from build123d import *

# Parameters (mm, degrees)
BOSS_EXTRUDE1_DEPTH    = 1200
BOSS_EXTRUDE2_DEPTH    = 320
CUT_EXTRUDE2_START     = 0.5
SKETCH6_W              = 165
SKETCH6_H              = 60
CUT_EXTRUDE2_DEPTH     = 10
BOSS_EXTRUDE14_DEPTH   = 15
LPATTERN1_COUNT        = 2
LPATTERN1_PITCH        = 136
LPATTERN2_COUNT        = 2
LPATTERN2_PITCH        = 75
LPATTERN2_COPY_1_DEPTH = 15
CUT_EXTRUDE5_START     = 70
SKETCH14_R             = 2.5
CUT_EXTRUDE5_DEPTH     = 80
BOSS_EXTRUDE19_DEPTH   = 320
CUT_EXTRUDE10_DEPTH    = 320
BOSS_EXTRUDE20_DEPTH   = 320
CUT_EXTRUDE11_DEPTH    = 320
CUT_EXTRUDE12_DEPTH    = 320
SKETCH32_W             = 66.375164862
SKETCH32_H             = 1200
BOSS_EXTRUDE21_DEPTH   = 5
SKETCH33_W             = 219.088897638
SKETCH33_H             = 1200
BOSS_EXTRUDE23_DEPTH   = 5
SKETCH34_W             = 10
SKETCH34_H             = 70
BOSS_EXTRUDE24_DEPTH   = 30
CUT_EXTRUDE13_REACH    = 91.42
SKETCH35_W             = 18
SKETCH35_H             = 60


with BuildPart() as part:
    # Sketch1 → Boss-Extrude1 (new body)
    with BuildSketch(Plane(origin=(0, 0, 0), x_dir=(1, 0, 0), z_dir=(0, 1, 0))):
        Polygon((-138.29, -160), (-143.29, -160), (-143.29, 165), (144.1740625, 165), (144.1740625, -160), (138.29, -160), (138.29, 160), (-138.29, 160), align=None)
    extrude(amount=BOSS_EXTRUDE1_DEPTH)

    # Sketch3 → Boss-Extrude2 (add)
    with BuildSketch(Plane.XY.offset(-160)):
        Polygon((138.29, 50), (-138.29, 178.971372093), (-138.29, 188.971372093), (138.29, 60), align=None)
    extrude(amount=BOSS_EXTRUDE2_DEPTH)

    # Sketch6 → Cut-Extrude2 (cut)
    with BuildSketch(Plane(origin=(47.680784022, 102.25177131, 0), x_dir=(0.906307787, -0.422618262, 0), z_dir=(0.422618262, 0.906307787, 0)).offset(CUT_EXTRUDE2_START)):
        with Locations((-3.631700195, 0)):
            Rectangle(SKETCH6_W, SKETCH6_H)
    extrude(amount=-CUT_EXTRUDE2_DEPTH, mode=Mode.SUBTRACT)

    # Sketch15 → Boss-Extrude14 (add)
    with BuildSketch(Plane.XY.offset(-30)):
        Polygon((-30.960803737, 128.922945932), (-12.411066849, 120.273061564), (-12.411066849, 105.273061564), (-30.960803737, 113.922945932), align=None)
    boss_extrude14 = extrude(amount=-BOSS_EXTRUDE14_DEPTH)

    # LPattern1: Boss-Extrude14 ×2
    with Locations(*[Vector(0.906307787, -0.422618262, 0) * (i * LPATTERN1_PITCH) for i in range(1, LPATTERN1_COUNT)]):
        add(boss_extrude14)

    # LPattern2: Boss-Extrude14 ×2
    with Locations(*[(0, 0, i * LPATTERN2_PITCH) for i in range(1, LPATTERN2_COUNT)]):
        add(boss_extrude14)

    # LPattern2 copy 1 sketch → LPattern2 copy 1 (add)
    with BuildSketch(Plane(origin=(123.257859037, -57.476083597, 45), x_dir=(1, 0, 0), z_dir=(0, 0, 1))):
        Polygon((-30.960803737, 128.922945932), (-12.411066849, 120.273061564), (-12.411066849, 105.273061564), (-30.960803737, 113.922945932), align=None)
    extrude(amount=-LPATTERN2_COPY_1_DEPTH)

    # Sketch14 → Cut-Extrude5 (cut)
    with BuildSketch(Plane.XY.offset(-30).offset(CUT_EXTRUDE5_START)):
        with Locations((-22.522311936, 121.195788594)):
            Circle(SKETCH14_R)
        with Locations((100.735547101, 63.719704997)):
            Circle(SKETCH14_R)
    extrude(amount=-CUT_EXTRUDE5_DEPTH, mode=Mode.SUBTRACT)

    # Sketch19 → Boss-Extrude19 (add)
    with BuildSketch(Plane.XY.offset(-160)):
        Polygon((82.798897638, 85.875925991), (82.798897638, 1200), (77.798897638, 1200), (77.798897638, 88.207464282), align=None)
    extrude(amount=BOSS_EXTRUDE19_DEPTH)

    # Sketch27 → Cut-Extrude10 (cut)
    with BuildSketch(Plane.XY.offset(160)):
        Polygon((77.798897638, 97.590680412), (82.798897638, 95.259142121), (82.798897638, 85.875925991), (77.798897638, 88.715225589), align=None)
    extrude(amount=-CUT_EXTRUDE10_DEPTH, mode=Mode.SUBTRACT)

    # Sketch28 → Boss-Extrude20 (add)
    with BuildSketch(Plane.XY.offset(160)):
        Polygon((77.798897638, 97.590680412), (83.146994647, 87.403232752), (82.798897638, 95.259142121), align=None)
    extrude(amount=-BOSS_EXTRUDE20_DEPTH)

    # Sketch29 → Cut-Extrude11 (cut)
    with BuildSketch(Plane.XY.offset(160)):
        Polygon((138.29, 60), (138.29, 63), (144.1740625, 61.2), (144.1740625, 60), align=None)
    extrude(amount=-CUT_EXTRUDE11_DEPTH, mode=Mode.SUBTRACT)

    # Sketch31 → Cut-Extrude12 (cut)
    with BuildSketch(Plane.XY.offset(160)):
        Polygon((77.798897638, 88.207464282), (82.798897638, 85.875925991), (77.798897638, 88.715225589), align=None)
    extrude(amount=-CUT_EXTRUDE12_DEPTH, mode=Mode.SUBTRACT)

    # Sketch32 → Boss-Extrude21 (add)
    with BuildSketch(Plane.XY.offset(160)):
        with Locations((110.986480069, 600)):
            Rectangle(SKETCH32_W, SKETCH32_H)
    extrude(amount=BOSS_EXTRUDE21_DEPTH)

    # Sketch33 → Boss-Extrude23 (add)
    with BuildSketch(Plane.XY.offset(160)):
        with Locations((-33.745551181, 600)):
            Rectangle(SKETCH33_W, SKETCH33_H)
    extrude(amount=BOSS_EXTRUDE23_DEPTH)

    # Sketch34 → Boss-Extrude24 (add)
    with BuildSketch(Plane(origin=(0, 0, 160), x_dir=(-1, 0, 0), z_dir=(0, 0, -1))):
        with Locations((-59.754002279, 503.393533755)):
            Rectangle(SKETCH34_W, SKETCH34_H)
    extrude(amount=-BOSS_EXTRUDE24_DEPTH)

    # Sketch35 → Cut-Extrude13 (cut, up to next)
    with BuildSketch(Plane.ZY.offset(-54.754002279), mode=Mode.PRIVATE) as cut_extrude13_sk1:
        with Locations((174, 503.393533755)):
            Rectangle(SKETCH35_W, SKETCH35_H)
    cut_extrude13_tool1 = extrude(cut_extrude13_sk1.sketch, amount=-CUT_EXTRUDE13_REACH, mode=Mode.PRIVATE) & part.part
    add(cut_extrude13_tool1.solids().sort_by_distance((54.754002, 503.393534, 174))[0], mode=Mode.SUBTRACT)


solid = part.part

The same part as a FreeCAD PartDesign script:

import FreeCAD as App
import Part
import Sketcher
Q = App.Units.Quantity


def add_polygon(sketch, points):
    """Adds a closed chain of lines whose ends are joined by coincident constraints."""
    first, n = sketch.GeometryCount, len(points)
    for a, b in zip(points, points[1:] + points[:1]):
        sketch.addGeometry(Part.LineSegment(App.Vector(*a, 0), App.Vector(*b, 0)), False)
    for i in range(n):
        sketch.addConstraint(Sketcher.Constraint("Coincident", first + i, 2, first + (i + 1) % n, 1))

doc = App.newDocument("Part")
body = doc.addObject("PartDesign::Body", "Body")

# Sketch on XZ plane
sketch1 = doc.addObject("Sketcher::SketchObject", "Sketch")
body.addObject(sketch1)
sketch1.AttachmentSupport = (doc.XZ_Plane, [""])
sketch1.MapMode = "FlatFace"
add_polygon(sketch1, [(-143.29, 160), (-138.29, 160), (-138.29, -160), (138.29, -160), (138.29, 160), (144.174062, 160), (144.174062, -165), (-143.29, -165)])  # lines 0-7
sketch1.addConstraint([
    Sketcher.Constraint("Horizontal", 0),
    Sketcher.Constraint("Vertical", 1),
    Sketcher.Constraint("Horizontal", 2),
    Sketcher.Constraint("Vertical", 3),
    Sketcher.Constraint("Horizontal", 4),
    Sketcher.Constraint("Vertical", 5),
    Sketcher.Constraint("Horizontal", 6),
    Sketcher.Constraint("Vertical", 7),
    Sketcher.Constraint("Symmetric", 0, 2, 2, 2, -1, 1),
    Sketcher.Constraint("Horizontal", 0, 2, 3, 2),
    Sketcher.Constraint("DistanceX", 0, 1, 0, 2, 5.0),
    Sketcher.Constraint("DistanceY", 1, 2, 1, 1, 320.0),
    Sketcher.Constraint("DistanceY", 5, 2, 5, 1, 325.0),
    Sketcher.Constraint("DistanceX", 2, 1, 2, 2, 276.58),
    Sketcher.Constraint("DistanceX", 4, 1, 4, 2, 5.884062),
])
pad1 = doc.addObject("PartDesign::Pad", "Pad")
body.addObject(pad1)
pad1.Profile = sketch1
pad1.Length = 1200
pad1.Reversed = True

# Sketch on XY plane
sketch2 = doc.addObject("Sketcher::SketchObject", "Sketch001")
body.addObject(sketch2)
sketch2.AttachmentSupport = (doc.XY_Plane, [""])
sketch2.MapMode = "FlatFace"
sketch2.AttachmentOffset = App.Placement(App.Vector(0, 0, -160), App.Rotation())
add_polygon(sketch2, [(-138.29, 178.971372), (138.29, 50), (138.29, 60), (-138.29, 188.971372)])  # lines 0-3
sketch2.addConstraint([
    Sketcher.Constraint("Vertical", 1),
    Sketcher.Constraint("Vertical", 3),
    Sketcher.Constraint("Parallel", 0, 2),
    Sketcher.Constraint("DistanceY", 1, 1, 1, 2, 10.0),
    Sketcher.Constraint("Angle", 0, Q("-25 deg")),
    Sketcher.Constraint("DistanceY", -1, 1, 0, 2, 50.0),
    Sketcher.Constraint("DistanceX", -1, 1, 0, 2, 138.29),
    Sketcher.Constraint("DistanceX", 2, 2, -1, 1, 138.29),
])
pad2 = doc.addObject("PartDesign::Pad", "Pad001")
body.addObject(pad2)
pad2.Profile = sketch2
pad2.Length = 320

# Sketch on an angled plane
sketch3 = doc.addObject("Sketcher::SketchObject", "Sketch002")
body.addObject(sketch3)
sketch3.Placement = App.Placement(App.Vector(47.892093, 102.704925, 0), App.Rotation(App.Vector(0.906307787, -0.422618262, 0), App.Vector(0, 0, -1), App.Vector(0.422618262, 0.906307787, 0), "ZXY"))
add_polygon(sketch3, [(-86.1317, 30), (-86.1317, -30), (78.8683, -30), (78.8683, 30)])  # lines 0-3
sketch3.addConstraint([
    Sketcher.Constraint("Vertical", 0),
    Sketcher.Constraint("Horizontal", 1),
    Sketcher.Constraint("Vertical", 2),
    Sketcher.Constraint("Horizontal", 3),
    Sketcher.Constraint("DistanceX", 1, 1, 1, 2, 165.0),
    Sketcher.Constraint("DistanceY", 0, 2, 0, 1, 60.0),
    Sketcher.Constraint("DistanceY", 0, 2, -1, 1, 30.0),
    Sketcher.Constraint("DistanceX", 0, 2, -1, 1, 86.1317),
])
pocket1 = doc.addObject("PartDesign::Pocket", "Pocket")
body.addObject(pocket1)
pocket1.Profile = sketch3
pocket1.Length = 10

# Sketch on XY plane
sketch4 = doc.addObject("Sketcher::SketchObject", "Sketch003")
body.addObject(sketch4)
sketch4.AttachmentSupport = (doc.XY_Plane, [""])
sketch4.MapMode = "FlatFace"
sketch4.AttachmentOffset = App.Placement(App.Vector(0, 0, -30), App.Rotation())
add_polygon(sketch4, [(-12.411067, 120.273062), (-30.960804, 128.922946), (-30.960804, 113.922946), (-12.411067, 105.273062)])  # lines 0-3
sketch4.addConstraint([
    Sketcher.Constraint("Vertical", 1),
    Sketcher.Constraint("Vertical", 3),
    Sketcher.Constraint("Parallel", 0, 2),
    Sketcher.Constraint("DistanceY", 1, 2, 1, 1, 15.0),
    Sketcher.Constraint("Angle", 0, Q("155 deg")),
    Sketcher.Constraint("Distance", 0, 20.46737),
    Sketcher.Constraint("DistanceY", -1, 1, 2, 2, 105.273062),
    Sketcher.Constraint("DistanceX", 0, 2, -1, 1, 30.960804),
])
pad3 = doc.addObject("PartDesign::Pad", "Pad002")
body.addObject(pad3)
pad3.Profile = sketch4
pad3.Length = 15
pad3.Reversed = True
doc.recompute()

datumline = doc.addObject("PartDesign::Line", "DatumLine")
body.addObject(datumline)
datumline.Placement = App.Placement(App.Vector(0, 0, 0), App.Rotation(App.Vector(0, 0, 1), App.Vector(0.906307787, -0.422618262, 0)))
linearpattern = doc.addObject("PartDesign::LinearPattern", "LinearPattern")
body.addObject(linearpattern)
linearpattern.Originals = [pad3]
linearpattern.Direction = (datumline, [""])
linearpattern.Mode = "offset"
linearpattern.Offset = 136
linearpattern.Occurrences = 2
body.Tip = linearpattern
doc.recompute()

linearpattern2 = doc.addObject("PartDesign::LinearPattern", "LinearPattern001")
body.addObject(linearpattern2)
linearpattern2.Originals = [pad3]
linearpattern2.Direction = (doc.Z_Axis, [""])
linearpattern2.Mode = "offset"
linearpattern2.Offset = 75
linearpattern2.Occurrences = 2
body.Tip = linearpattern2

# Sketch on XY plane
sketch5 = doc.addObject("Sketcher::SketchObject", "Sketch004")
body.addObject(sketch5)
sketch5.AttachmentSupport = (doc.XY_Plane, [""])
sketch5.MapMode = "FlatFace"
sketch5.AttachmentOffset = App.Placement(App.Vector(0, 0, 45), App.Rotation())
add_polygon(sketch5, [(110.846792, 62.796978), (92.297055, 71.446862), (92.297055, 56.446862), (110.846792, 47.796978)])  # lines 0-3
sketch5.addConstraint([
    Sketcher.Constraint("Vertical", 1),
    Sketcher.Constraint("Vertical", 3),
    Sketcher.Constraint("Parallel", 0, 2),
    Sketcher.Constraint("DistanceY", 1, 2, 1, 1, 15.0),
    Sketcher.Constraint("Angle", 0, Q("155 deg")),
    Sketcher.Constraint("Distance", 0, 20.46737),
    Sketcher.Constraint("DistanceX", -1, 1, 0, 2, 92.297055),
    Sketcher.Constraint("DistanceY", -1, 1, 0, 2, 71.446862),
])
pad4 = doc.addObject("PartDesign::Pad", "Pad003")
body.addObject(pad4)
pad4.Profile = sketch5
pad4.Length = 15
pad4.Reversed = True

# Sketch on XY plane
sketch6 = doc.addObject("Sketcher::SketchObject", "Sketch005")
body.addObject(sketch6)
sketch6.AttachmentSupport = (doc.XY_Plane, [""])
sketch6.MapMode = "FlatFace"
sketch6.AttachmentOffset = App.Placement(App.Vector(0, 0, 40), App.Rotation())
sketch6.addGeometry([
    Part.Circle(App.Vector(-22.522312, 121.195789, 0), App.Vector(0, 0, 1), 2.5),
    Part.Circle(App.Vector(100.735547, 63.719705, 0), App.Vector(0, 0, 1), 2.5),
], False)
sketch6.addConstraint([
    Sketcher.Constraint("Equal", 0, 1),
    Sketcher.Constraint("Diameter", 0, 5.0),
    Sketcher.Constraint("DistanceX", 0, 3, -1, 1, 22.522312),
    Sketcher.Constraint("DistanceY", -1, 1, 0, 3, 121.195789),
    Sketcher.Constraint("DistanceX", 0, 3, 1, 3, 123.257859),
    Sketcher.Constraint("DistanceY", -1, 1, 1, 3, 63.719705),
])
pocket2 = doc.addObject("PartDesign::Pocket", "Pocket001")
body.addObject(pocket2)
pocket2.Profile = sketch6
pocket2.Length = 80

# Sketch on XY plane
sketch7 = doc.addObject("Sketcher::SketchObject", "Sketch006")
body.addObject(sketch7)
sketch7.AttachmentSupport = (doc.XY_Plane, [""])
sketch7.MapMode = "FlatFace"
sketch7.AttachmentOffset = App.Placement(App.Vector(0, 0, -160), App.Rotation())
add_polygon(sketch7, [(82.798898, 85.875926), (82.798898, 1200), (77.798898, 1200), (77.798898, 88.207464)])  # lines 0-3
sketch7.addConstraint([
    Sketcher.Constraint("Vertical", 0),
    Sketcher.Constraint("Horizontal", 1),
    Sketcher.Constraint("Vertical", 2),
    Sketcher.Constraint("DistanceX", 1, 2, 1, 1, 5.0),
    Sketcher.Constraint("Angle", 3, Q("-25 deg")),
    Sketcher.Constraint("DistanceY", -1, 1, 0, 2, 1200.0),
    Sketcher.Constraint("DistanceY", 0, 1, 0, 2, 1114.124074),
    Sketcher.Constraint("DistanceX", -1, 1, 0, 2, 82.798898),
])
pad5 = doc.addObject("PartDesign::Pad", "Pad004")
body.addObject(pad5)
pad5.Profile = sketch7
pad5.Length = 320

# Sketch on XY plane
sketch8 = doc.addObject("Sketcher::SketchObject", "Sketch007")
body.addObject(sketch8)
sketch8.AttachmentSupport = (doc.XY_Plane, [""])
sketch8.MapMode = "FlatFace"
sketch8.AttachmentOffset = App.Placement(App.Vector(0, 0, 160), App.Rotation())
add_polygon(sketch8, [(82.798898, 95.259142), (77.798898, 97.59068), (77.798898, 88.715226), (82.798898, 85.875926)])  # lines 0-3
sketch8.addConstraint([
    Sketcher.Constraint("Vertical", 1),
    Sketcher.Constraint("Vertical", 3),
    Sketcher.Constraint("Angle", 0, Q("155 deg")),
    Sketcher.Constraint("DistanceX", 1, 2, 2, 2, 5.0),
    Sketcher.Constraint("DistanceY", 2, 2, 1, 2, 2.8393),
    Sketcher.Constraint("DistanceY", 1, 2, 1, 1, 8.875455),
    Sketcher.Constraint("DistanceY", -1, 1, 0, 2, 97.59068),
    Sketcher.Constraint("DistanceX", -1, 1, 0, 2, 77.798898),
])
pocket3 = doc.addObject("PartDesign::Pocket", "Pocket002")
body.addObject(pocket3)
pocket3.Profile = sketch8
pocket3.Length = 320

# Sketch on XY plane
sketch9 = doc.addObject("Sketcher::SketchObject", "Sketch008")
body.addObject(sketch9)
sketch9.AttachmentSupport = (doc.XY_Plane, [""])
sketch9.MapMode = "FlatFace"
sketch9.AttachmentOffset = App.Placement(App.Vector(0, 0, 160), App.Rotation())
add_polygon(sketch9, [(77.798898, 97.59068), (83.146995, 87.403233), (82.798898, 95.259142)])  # lines 0-2
sketch9.addConstraint([
    Sketcher.Constraint("Angle", 2, Q("155 deg")),
    Sketcher.Constraint("DistanceX", 2, 2, 1, 2, 5.0),
    Sketcher.Constraint("Distance", 0, 11.505922),
    Sketcher.Constraint("DistanceY", -1, 1, 2, 2, 97.59068),
    Sketcher.Constraint("DistanceY", 0, 2, 1, 2, 7.855909),
    Sketcher.Constraint("DistanceX", -1, 1, 0, 2, 83.146995),
])
pad6 = doc.addObject("PartDesign::Pad", "Pad005")
body.addObject(pad6)
pad6.Profile = sketch9
pad6.Length = 320
pad6.Reversed = True

# Sketch on XY plane
sketch10 = doc.addObject("Sketcher::SketchObject", "Sketch009")
body.addObject(sketch10)
sketch10.AttachmentSupport = (doc.XY_Plane, [""])
sketch10.MapMode = "FlatFace"
sketch10.AttachmentOffset = App.Placement(App.Vector(0, 0, 160), App.Rotation())
add_polygon(sketch10, [(138.29, 63), (138.29, 60), (144.174062, 60), (144.174062, 61.2)])  # lines 0-3
sketch10.addConstraint([
    Sketcher.Constraint("Vertical", 0),
    Sketcher.Constraint("Horizontal", 1),
    Sketcher.Constraint("Vertical", 2),
    Sketcher.Constraint("DistanceY", 0, 2, 0, 1, 3.0),
    Sketcher.Constraint("DistanceY", 2, 1, 2, 2, 1.2),
    Sketcher.Constraint("DistanceY", -1, 1, 0, 2, 60.0),
    Sketcher.Constraint("DistanceX", -1, 1, 0, 2, 138.29),
    Sketcher.Constraint("DistanceX", 1, 1, 1, 2, 5.884062),
])
pocket4 = doc.addObject("PartDesign::Pocket", "Pocket003")
body.addObject(pocket4)
pocket4.Profile = sketch10
pocket4.Length = 320

# Sketch on XY plane
sketch11 = doc.addObject("Sketcher::SketchObject", "Sketch010")
body.addObject(sketch11)
sketch11.AttachmentSupport = (doc.XY_Plane, [""])
sketch11.MapMode = "FlatFace"
sketch11.AttachmentOffset = App.Placement(App.Vector(0, 0, 160), App.Rotation())
add_polygon(sketch11, [(77.798898, 88.207464), (82.798898, 85.875926), (77.798898, 88.715226)])  # lines 0-2
sketch11.addConstraint([
    Sketcher.Constraint("Vertical", 2),
    Sketcher.Constraint("Angle", 0, Q("-25 deg")),
    Sketcher.Constraint("DistanceX", 1, 2, 0, 2, 5.0),
    Sketcher.Constraint("DistanceY", 2, 2, 2, 1, 0.507761),
    Sketcher.Constraint("DistanceX", -1, 1, 0, 2, 82.798898),
    Sketcher.Constraint("DistanceY", -1, 1, 0, 2, 85.875926),
])
pocket5 = doc.addObject("PartDesign::Pocket", "Pocket004")
body.addObject(pocket5)
pocket5.Profile = sketch11
pocket5.Length = 320

# Sketch on XY plane
sketch12 = doc.addObject("Sketcher::SketchObject", "Sketch011")
body.addObject(sketch12)
sketch12.AttachmentSupport = (doc.XY_Plane, [""])
sketch12.MapMode = "FlatFace"
sketch12.AttachmentOffset = App.Placement(App.Vector(0, 0, 160), App.Rotation())
add_polygon(sketch12, [(77.798898, 1200), (77.798898, 0), (144.174062, 0), (144.174062, 1200)])  # lines 0-3
sketch12.addConstraint([
    Sketcher.Constraint("Vertical", 0),
    Sketcher.Constraint("Horizontal", 1),
    Sketcher.Constraint("Vertical", 2),
    Sketcher.Constraint("Horizontal", 3),
    Sketcher.Constraint("PointOnObject", 0, 2, -1),
    Sketcher.Constraint("DistanceY", 0, 2, 0, 1, 1200.0),
    Sketcher.Constraint("DistanceX", 1, 1, 1, 2, 66.375165),
    Sketcher.Constraint("DistanceX", -1, 1, 0, 2, 77.798898),
])
pad7 = doc.addObject("PartDesign::Pad", "Pad006")
body.addObject(pad7)
pad7.Profile = sketch12
pad7.Length = 5

# Sketch on XY plane
sketch13 = doc.addObject("Sketcher::SketchObject", "Sketch012")
body.addObject(sketch13)
sketch13.AttachmentSupport = (doc.XY_Plane, [""])
sketch13.MapMode = "FlatFace"
sketch13.AttachmentOffset = App.Placement(App.Vector(0, 0, 160), App.Rotation())
add_polygon(sketch13, [(-143.29, 1200), (-143.29, 0), (75.798898, 0), (75.798898, 1200)])  # lines 0-3
sketch13.addConstraint([
    Sketcher.Constraint("Vertical", 0),
    Sketcher.Constraint("Horizontal", 1),
    Sketcher.Constraint("Vertical", 2),
    Sketcher.Constraint("Horizontal", 3),
    Sketcher.Constraint("PointOnObject", 0, 2, -1),
    Sketcher.Constraint("DistanceY", 0, 2, 0, 1, 1200.0),
    Sketcher.Constraint("DistanceX", 0, 2, -1, 1, 143.29),
    Sketcher.Constraint("DistanceX", 1, 1, 1, 2, 219.088898),
])
pad8 = doc.addObject("PartDesign::Pad", "Pad007")
body.addObject(pad8)
pad8.Profile = sketch13
pad8.Length = 5

# Sketch on XY plane
sketch14 = doc.addObject("Sketcher::SketchObject", "Sketch013")
body.addObject(sketch14)
sketch14.AttachmentSupport = (doc.XY_Plane, [""])
sketch14.MapMode = "FlatFace"
sketch14.AttachmentOffset = App.Placement(App.Vector(0, 0, 160), App.Rotation())
add_polygon(sketch14, [(64.754002, 538.393534), (64.754002, 468.393534), (54.754002, 468.393534), (54.754002, 538.393534)])  # lines 0-3
sketch14.addConstraint([
    Sketcher.Constraint("Vertical", 0),
    Sketcher.Constraint("Horizontal", 1),
    Sketcher.Constraint("Vertical", 2),
    Sketcher.Constraint("Horizontal", 3),
    Sketcher.Constraint("DistanceX", 1, 2, 1, 1, 10.0),
    Sketcher.Constraint("DistanceY", 0, 2, 0, 1, 70.0),
    Sketcher.Constraint("DistanceX", -1, 1, 0, 2, 64.754002),
    Sketcher.Constraint("DistanceY", -1, 1, 0, 2, 468.393534),
])
pad9 = doc.addObject("PartDesign::Pad", "Pad008")
body.addObject(pad9)
pad9.Profile = sketch14
pad9.Length = 30

# Sketch on YZ plane
sketch15 = doc.addObject("Sketcher::SketchObject", "Sketch014")
body.addObject(sketch15)
sketch15.AttachmentSupport = (doc.YZ_Plane, [""])
sketch15.MapMode = "FlatFace"
sketch15.AttachmentOffset = App.Placement(App.Vector(0, 0, 54.754002), App.Rotation())
add_polygon(sketch15, [(533.393534, 165), (473.393534, 165), (473.393534, 183), (533.393534, 183)])  # lines 0-3
sketch15.addConstraint([
    Sketcher.Constraint("Horizontal", 0),
    Sketcher.Constraint("Vertical", 1),
    Sketcher.Constraint("Horizontal", 2),
    Sketcher.Constraint("Vertical", 3),
    Sketcher.Constraint("DistanceX", 0, 2, 0, 1, 60.0),
    Sketcher.Constraint("DistanceY", 1, 1, 1, 2, 18.0),
    Sketcher.Constraint("DistanceY", -1, 1, 0, 2, 165.0),
    Sketcher.Constraint("DistanceX", -1, 1, 0, 2, 473.393534),
])
pocket6 = doc.addObject("PartDesign::Pocket", "Pocket005")
body.addObject(pocket6)
pocket6.Profile = sketch15
pocket6.Type = "UpToFirst"
pocket6.Reversed = True

doc.recompute()
